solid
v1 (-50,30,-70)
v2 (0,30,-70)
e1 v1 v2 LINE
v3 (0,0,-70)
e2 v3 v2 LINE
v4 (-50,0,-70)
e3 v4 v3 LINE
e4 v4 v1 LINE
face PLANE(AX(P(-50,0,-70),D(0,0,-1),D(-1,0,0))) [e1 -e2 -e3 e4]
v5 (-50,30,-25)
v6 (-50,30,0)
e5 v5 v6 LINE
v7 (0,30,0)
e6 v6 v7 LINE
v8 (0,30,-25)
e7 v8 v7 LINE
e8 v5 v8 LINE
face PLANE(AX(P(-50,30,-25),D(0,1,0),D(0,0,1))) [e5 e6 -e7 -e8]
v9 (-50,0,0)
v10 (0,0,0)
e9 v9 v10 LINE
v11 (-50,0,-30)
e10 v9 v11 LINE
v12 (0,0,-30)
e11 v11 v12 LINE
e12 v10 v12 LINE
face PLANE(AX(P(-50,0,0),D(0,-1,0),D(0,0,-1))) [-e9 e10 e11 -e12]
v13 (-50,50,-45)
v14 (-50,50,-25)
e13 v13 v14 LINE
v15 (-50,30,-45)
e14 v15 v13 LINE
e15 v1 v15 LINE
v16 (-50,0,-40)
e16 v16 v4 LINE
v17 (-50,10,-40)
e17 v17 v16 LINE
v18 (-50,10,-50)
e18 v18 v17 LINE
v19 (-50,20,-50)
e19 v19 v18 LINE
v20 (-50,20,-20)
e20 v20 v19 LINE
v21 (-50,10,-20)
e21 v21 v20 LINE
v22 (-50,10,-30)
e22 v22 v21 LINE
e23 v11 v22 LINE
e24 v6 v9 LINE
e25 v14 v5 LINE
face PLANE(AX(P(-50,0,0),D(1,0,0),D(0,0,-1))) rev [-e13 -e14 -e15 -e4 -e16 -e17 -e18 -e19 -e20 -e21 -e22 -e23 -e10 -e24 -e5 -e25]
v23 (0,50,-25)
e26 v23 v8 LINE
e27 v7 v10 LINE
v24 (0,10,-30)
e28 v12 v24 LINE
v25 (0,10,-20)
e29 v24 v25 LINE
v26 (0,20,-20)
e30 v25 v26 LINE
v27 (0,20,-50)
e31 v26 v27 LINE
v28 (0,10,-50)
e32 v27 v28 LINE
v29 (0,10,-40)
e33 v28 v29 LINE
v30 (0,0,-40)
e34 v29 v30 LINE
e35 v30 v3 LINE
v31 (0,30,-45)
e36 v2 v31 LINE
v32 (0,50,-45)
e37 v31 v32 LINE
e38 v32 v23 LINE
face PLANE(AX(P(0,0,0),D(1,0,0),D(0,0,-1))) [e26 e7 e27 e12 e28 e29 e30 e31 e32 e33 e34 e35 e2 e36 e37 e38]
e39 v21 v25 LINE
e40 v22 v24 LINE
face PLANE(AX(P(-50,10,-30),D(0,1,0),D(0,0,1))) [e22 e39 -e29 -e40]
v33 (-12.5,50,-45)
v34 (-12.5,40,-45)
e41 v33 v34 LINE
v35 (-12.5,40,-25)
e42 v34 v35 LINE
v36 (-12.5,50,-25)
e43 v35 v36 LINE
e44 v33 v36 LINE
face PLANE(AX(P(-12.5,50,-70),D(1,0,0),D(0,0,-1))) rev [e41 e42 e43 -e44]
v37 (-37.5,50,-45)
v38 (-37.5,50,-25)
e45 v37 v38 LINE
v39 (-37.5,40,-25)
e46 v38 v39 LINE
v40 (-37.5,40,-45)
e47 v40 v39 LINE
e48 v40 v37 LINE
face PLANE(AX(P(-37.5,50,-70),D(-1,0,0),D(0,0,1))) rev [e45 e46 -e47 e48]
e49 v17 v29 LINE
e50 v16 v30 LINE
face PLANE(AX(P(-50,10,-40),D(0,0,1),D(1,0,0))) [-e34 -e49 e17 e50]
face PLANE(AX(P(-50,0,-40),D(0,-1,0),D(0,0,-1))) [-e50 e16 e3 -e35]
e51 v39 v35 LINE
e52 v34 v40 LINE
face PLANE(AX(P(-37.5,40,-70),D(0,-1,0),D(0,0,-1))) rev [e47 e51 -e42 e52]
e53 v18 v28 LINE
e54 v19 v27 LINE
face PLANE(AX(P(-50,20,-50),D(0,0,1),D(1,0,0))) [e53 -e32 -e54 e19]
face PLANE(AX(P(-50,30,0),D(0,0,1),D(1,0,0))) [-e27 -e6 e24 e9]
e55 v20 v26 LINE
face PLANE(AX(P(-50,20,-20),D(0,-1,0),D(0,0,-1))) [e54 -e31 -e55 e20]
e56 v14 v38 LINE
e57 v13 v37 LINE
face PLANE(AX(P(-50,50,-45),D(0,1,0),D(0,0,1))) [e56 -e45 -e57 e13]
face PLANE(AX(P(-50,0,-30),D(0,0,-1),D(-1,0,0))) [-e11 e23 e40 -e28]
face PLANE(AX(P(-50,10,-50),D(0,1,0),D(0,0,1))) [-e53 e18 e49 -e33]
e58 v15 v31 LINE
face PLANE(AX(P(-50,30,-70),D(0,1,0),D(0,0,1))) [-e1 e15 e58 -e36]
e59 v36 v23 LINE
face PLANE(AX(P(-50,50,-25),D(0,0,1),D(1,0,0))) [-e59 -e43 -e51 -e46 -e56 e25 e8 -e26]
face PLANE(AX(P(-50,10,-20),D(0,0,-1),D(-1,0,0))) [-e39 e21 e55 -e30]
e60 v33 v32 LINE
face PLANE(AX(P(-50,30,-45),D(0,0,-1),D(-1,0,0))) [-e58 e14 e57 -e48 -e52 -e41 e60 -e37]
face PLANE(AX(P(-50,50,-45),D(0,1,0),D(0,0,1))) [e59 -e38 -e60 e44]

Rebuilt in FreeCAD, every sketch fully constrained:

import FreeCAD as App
import Part
import Sketcher

V = App.Vector

doc = App.newDocument("Part")
params = doc.addObject("Spreadsheet::Sheet", "Params")
for row, (alias, value) in enumerate([
    ("sketch1_width", "10 mm"),
    ("sketch1_width2", "30 mm"),
    ("sketch1_width3", "20 mm"),
    ("pad1_length", "50 mm"),
    ("sketch2_width", "25 mm"),
    ("sketch2_height", "10 mm"),
], start=1):
    params.set(f"A{row}", alias)
    params.set(f"B{row}", "=" + value)
    params.setAlias(f"B{row}", alias)

body = doc.addObject("PartDesign::Body", "Body")

# Sketch on YZ plane
sketch1 = doc.addObject("Sketcher::SketchObject", "Sketch")
body.addObject(sketch1)
sketch1.AttachmentSupport = (doc.YZ_Plane, [""])
sketch1.MapMode = "FlatFace"
sketch1.addGeometry([
    Part.LineSegment(V(0, 0, 0), V(0, -30, 0)),  # 0
    Part.LineSegment(V(0, -30, 0), V(10, -30, 0)),  # 1
    Part.LineSegment(V(10, -30, 0), V(10, -20, 0)),  # 2
    Part.LineSegment(V(10, -20, 0), V(20, -20, 0)),  # 3
    Part.LineSegment(V(20, -20, 0), V(20, -50, 0)),  # 4
    Part.LineSegment(V(20, -50, 0), V(10, -50, 0)),  # 5
    Part.LineSegment(V(10, -50, 0), V(10, -40, 0)),  # 6
    Part.LineSegment(V(10, -40, 0), V(0, -40, 0)),  # 7
    Part.LineSegment(V(0, -40, 0), V(0, -70, 0)),  # 8
    Part.LineSegment(V(0, -70, 0), V(30, -70, 0)),  # 9
    Part.LineSegment(V(30, -70, 0), V(30, -45, 0)),  # 10
    Part.LineSegment(V(30, -45, 0), V(50, -45, 0)),  # 11
    Part.LineSegment(V(50, -45, 0), V(50, -25, 0)),  # 12
    Part.LineSegment(V(50, -25, 0), V(30, -25, 0)),  # 13
    Part.LineSegment(V(30, -25, 0), V(30, 0, 0)),  # 14
    Part.LineSegment(V(30, 0, 0), V(0, 0, 0)),  # 15
], False)
sketch1.addConstraint([
    Sketcher.Constraint("Coincident", 0, 2, 1, 1),
    Sketcher.Constraint("Coincident", 1, 2, 2, 1),
    Sketcher.Constraint("Coincident", 2, 2, 3, 1),
    Sketcher.Constraint("Coincident", 3, 2, 4, 1),
    Sketcher.Constraint("Coincident", 4, 2, 5, 1),
    Sketcher.Constraint("Coincident", 5, 2, 6, 1),
    Sketcher.Constraint("Coincident", 6, 2, 7, 1),
    Sketcher.Constraint("Coincident", 7, 2, 8, 1),
    Sketcher.Constraint("Coincident", 8, 2, 9, 1),
    Sketcher.Constraint("Coincident", 9, 2, 10, 1),
    Sketcher.Constraint("Coincident", 10, 2, 11, 1),
    Sketcher.Constraint("Coincident", 11, 2, 12, 1),
    Sketcher.Constraint("Coincident", 12, 2, 13, 1),
    Sketcher.Constraint("Coincident", 13, 2, 14, 1),
    Sketcher.Constraint("Coincident", 14, 2, 15, 1),
    Sketcher.Constraint("Coincident", 15, 2, 0, 1),
    Sketcher.Constraint("Vertical", 0),
    Sketcher.Constraint("Horizontal", 1),
    Sketcher.Constraint("Vertical", 2),
    Sketcher.Constraint("Horizontal", 3),
    Sketcher.Constraint("Vertical", 4),
    Sketcher.Constraint("Horizontal", 5),
    Sketcher.Constraint("Vertical", 6),
    Sketcher.Constraint("Horizontal", 7),
    Sketcher.Constraint("Vertical", 8),
    Sketcher.Constraint("Horizontal", 9),
    Sketcher.Constraint("Vertical", 10),
    Sketcher.Constraint("Horizontal", 11),
    Sketcher.Constraint("Vertical", 12),
    Sketcher.Constraint("Horizontal", 13),
    Sketcher.Constraint("Vertical", 14),
    Sketcher.Constraint("Horizontal", 15),
    Sketcher.Constraint("Coincident", 15, 2, -1, 1),
    Sketcher.Constraint("PointOnObject", 7, 2, -2),
    Sketcher.Constraint("Vertical", 2, 2, 5, 2),
    Sketcher.Constraint("Vertical", 10, 2, 13, 2),
    Sketcher.Constraint("Equal", 1, 3),
    Sketcher.Constraint("Equal", 15, 0),
    Sketcher.Constraint("Equal", 7, 2),
    Sketcher.Constraint("Equal", 0, 4),
    Sketcher.Constraint("Equal", 2, 6),
    Sketcher.Constraint("Equal", 4, 8),
    Sketcher.Constraint("Equal", 13, 12),
    Sketcher.Constraint("Equal", 10, 14),
    Sketcher.Constraint("DistanceX", 1, 1, 1, 2, 10.0),
    Sketcher.Constraint("DistanceX", 9, 1, 9, 2, 30.0),
    Sketcher.Constraint("DistanceX", 11, 1, 11, 2, 20.0),
])
sketch1.setExpression("Constraints[44]", "Params.sketch1_width")
sketch1.setExpression("Constraints[45]", "Params.sketch1_width2")
sketch1.setExpression("Constraints[46]", "Params.sketch1_width3")
pad1 = doc.addObject("PartDesign::Pad", "Pad")
body.addObject(pad1)
pad1.Profile = sketch1
pad1.setExpression("Length", "Params.pad1_length")
pad1.Reversed = True

# Sketch on XY plane
sketch2 = doc.addObject("Sketcher::SketchObject", "Sketch001")
body.addObject(sketch2)
sketch2.AttachmentSupport = (doc.XY_Plane, [""])
sketch2.MapMode = "FlatFace"
sketch2.AttachmentOffset = App.Placement(V(0, 0, -25), App.Rotation())
sketch2.addGeometry([
    Part.LineSegment(V(-38, 50, 0), V(-38, 40, 0)),
    Part.LineSegment(V(-38, 40, 0), V(-12, 40, 0)),
    Part.LineSegment(V(-12, 40, 0), V(-12, 50, 0)),
    Part.LineSegment(V(-12, 50, 0), V(-38, 50, 0)),
], False)
sketch2.addConstraint([
    Sketcher.Constraint("Coincident", 0, 2, 1, 1),
    Sketcher.Constraint("Coincident", 1, 2, 2, 1),
    Sketcher.Constraint("Coincident", 2, 2, 3, 1),
    Sketcher.Constraint("Coincident", 3, 2, 0, 1),
    Sketcher.Constraint("Vertical", 0),
    Sketcher.Constraint("Horizontal", 1),
    Sketcher.Constraint("Vertical", 2),
    Sketcher.Constraint("Horizontal", 3),
    Sketcher.Constraint("DistanceX", 1, 1, 1, 2, 25.0),
    Sketcher.Constraint("DistanceY", 0, 2, 0, 1, 10.0),
    Sketcher.Constraint("DistanceY", -1, 1, 0, 2, 40.0),
    Sketcher.Constraint("DistanceX", 0, 2, -1, 1, 37.5),
])
sketch2.setExpression("Constraints[8]", "Params.sketch2_width")
sketch2.setExpression("Constraints[9]", "Params.sketch2_height")
pocket1 = doc.addObject("PartDesign::Pocket", "Pocket")
body.addObject(pocket1)
pocket1.Profile = sketch2
pocket1.Type = "ThroughAll"

doc.recompute()
